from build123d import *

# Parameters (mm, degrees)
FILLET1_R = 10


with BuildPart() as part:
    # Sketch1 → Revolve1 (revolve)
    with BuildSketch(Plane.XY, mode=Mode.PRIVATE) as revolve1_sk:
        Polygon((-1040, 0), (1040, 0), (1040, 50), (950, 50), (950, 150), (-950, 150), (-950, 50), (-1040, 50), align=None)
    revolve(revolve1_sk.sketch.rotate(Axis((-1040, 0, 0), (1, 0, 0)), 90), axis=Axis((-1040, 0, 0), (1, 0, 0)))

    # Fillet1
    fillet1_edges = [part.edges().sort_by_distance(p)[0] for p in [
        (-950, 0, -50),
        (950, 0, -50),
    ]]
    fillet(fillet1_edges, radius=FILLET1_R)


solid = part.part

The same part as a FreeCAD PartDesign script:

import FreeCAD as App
import Part
import Sketcher
from FreeCAD import Vector
Q = App.Units.Quantity


def edges_at(feature, points):
    """Names of the edges that pass closest to the given points."""
    edges = feature.Shape.Edges
    near = lambda p: min(range(len(edges)), key=lambda i: edges[i].distToShape(Part.Vertex(*p))[0])
    return sorted({f"Edge{near(p) + 1}" for p in points})

doc = App.newDocument("Part")
body = doc.addObject("PartDesign::Body", "Body")

# Sketch on XY plane
sketch1 = body.newObject("Sketcher::SketchObject", "Sketch")
sketch1.AttachmentSupport = (doc.getObject("XY_Plane"), [""])
sketch1.MapMode = "FlatFace"
sketch1.addGeometry([
    Part.LineSegment(Vector(-1040, 0, 0), Vector(1040, 0, 0)),  # 0
    Part.LineSegment(Vector(1040, 0, 0), Vector(1040, 50, 0)),  # 1
    Part.LineSegment(Vector(1040, 50, 0), Vector(950, 50, 0)),  # 2
    Part.LineSegment(Vector(950, 50, 0), Vector(950, 150, 0)),  # 3
    Part.LineSegment(Vector(950, 150, 0), Vector(-950, 150, 0)),  # 4
    Part.LineSegment(Vector(-950, 150, 0), Vector(-950, 50, 0)),  # 5
    Part.LineSegment(Vector(-950, 50, 0), Vector(-1040, 50, 0)),  # 6
    Part.LineSegment(Vector(-1040, 50, 0), Vector(-1040, 0, 0)),  # 7
], False)
sketch1.addConstraint([
    Sketcher.Constraint("Coincident", 0, 2, 1, 1),
    Sketcher.Constraint("Coincident", 1, 2, 2, 1),
    Sketcher.Constraint("Coincident", 2, 2, 3, 1),
    Sketcher.Constraint("Coincident", 3, 2, 4, 1),
    Sketcher.Constraint("Coincident", 4, 2, 5, 1),
    Sketcher.Constraint("Coincident", 5, 2, 6, 1),
    Sketcher.Constraint("Coincident", 6, 2, 7, 1),
    Sketcher.Constraint("Coincident", 7, 2, 0, 1),
    Sketcher.Constraint("Horizontal", 0),
    Sketcher.Constraint("Vertical", 1),
    Sketcher.Constraint("Horizontal", 2),
    Sketcher.Constraint("Vertical", 3),
    Sketcher.Constraint("Horizontal", 4),
    Sketcher.Constraint("Vertical", 5),
    Sketcher.Constraint("Horizontal", 6),
    Sketcher.Constraint("Vertical", 7),
    Sketcher.Constraint("Symmetric", 0, 2, 7, 2, -1, 1),
    Sketcher.Constraint("Symmetric", 2, 2, 5, 2, -2),
    Sketcher.Constraint("DistanceX", 0, 1, 0, 2, Q("2080 mm")),
    Sketcher.Constraint("DistanceX", 2, 2, 2, 1, Q("90 mm")),
    Sketcher.Constraint("DistanceY", 1, 1, 1, 2, Q("50 mm")),
    Sketcher.Constraint("DistanceY", 3, 1, 3, 2, Q("100 mm")),
])
revolution = body.newObject("PartDesign::Revolution", "Revolution")
revolution.Profile = sketch1
revolution.ReferenceAxis = (sketch1, ["H_Axis"])
revolution.Angle = 360
doc.recompute()

fillet = body.newObject("PartDesign::Fillet", "Fillet")
fillet.Base = (revolution, edges_at(revolution, [(-950, 0, -50), (950, 0, -50)]))
fillet.Radius = 10

doc.recompute()
